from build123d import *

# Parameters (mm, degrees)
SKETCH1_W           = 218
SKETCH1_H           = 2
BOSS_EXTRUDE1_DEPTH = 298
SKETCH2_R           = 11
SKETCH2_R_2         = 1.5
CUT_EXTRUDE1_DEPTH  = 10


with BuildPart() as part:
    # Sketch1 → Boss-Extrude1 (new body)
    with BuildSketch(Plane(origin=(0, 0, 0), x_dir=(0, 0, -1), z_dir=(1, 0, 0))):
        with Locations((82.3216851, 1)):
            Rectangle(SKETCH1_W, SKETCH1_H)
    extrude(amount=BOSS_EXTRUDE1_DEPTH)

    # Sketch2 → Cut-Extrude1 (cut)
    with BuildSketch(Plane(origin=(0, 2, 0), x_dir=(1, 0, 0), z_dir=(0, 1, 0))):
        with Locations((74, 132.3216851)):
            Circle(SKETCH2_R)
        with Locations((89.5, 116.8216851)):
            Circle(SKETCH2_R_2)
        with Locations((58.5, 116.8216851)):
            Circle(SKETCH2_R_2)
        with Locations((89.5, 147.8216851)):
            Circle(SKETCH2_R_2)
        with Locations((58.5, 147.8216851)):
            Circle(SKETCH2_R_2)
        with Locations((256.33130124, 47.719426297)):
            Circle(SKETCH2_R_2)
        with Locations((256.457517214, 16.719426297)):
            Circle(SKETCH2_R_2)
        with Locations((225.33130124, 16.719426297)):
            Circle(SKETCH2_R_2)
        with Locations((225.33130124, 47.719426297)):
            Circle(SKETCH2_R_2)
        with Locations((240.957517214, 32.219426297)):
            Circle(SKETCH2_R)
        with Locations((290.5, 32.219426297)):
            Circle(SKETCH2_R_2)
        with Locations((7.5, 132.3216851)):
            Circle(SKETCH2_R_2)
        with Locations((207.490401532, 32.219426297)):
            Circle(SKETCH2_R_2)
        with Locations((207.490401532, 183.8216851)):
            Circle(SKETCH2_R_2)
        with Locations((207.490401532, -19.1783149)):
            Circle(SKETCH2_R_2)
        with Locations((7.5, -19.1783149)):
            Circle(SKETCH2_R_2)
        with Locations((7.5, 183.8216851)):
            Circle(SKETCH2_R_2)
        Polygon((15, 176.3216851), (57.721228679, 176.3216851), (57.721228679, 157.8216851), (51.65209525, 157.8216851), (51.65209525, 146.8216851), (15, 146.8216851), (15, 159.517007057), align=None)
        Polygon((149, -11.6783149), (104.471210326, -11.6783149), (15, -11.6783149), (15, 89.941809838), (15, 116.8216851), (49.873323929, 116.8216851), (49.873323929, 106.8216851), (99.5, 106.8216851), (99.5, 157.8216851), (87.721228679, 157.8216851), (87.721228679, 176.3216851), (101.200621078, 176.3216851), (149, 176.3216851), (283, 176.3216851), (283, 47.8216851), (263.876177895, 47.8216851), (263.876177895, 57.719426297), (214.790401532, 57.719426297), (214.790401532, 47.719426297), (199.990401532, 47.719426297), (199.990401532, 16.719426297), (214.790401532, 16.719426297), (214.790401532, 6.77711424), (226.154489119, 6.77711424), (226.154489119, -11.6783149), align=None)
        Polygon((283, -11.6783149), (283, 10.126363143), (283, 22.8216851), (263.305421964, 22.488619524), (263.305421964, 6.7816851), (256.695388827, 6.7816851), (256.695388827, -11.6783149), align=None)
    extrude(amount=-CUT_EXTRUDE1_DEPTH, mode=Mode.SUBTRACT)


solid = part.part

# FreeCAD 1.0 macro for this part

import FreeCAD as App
import Part
import Sketcher

doc = App.newDocument("Part")
body = doc.addObject("PartDesign::Body", "Body")

sketch1 = body.newObject("Sketcher::SketchObject", "Sketch")
sketch1.AttachmentSupport = (doc.getObject("YZ_Plane"), [""])
sketch1.MapMode = "FlatFace"
sketch1.addGeometry(Part.LineSegment(App.Vector(2, 26.7, 0), App.Vector(0, 26.7, 0)), False)
sketch1.addGeometry(Part.LineSegment(App.Vector(0, 26.7, 0), App.Vector(0, -191.3, 0)), False)
sketch1.addGeometry(Part.LineSegment(App.Vector(0, -191.3, 0), App.Vector(2, -191.3, 0)), False)
sketch1.addGeometry(Part.LineSegment(App.Vector(2, -191.3, 0), App.Vector(2, 26.7, 0)), False)
sketch1.addConstraint(Sketcher.Constraint("Coincident", 0, 2, 1, 1))
sketch1.addConstraint(Sketcher.Constraint("Coincident", 1, 2, 2, 1))
sketch1.addConstraint(Sketcher.Constraint("Coincident", 2, 2, 3, 1))
sketch1.addConstraint(Sketcher.Constraint("Coincident", 3, 2, 0, 1))
sketch1.addConstraint(Sketcher.Constraint("Horizontal", 0))
sketch1.addConstraint(Sketcher.Constraint("Vertical", 1))
sketch1.addConstraint(Sketcher.Constraint("Horizontal", 2))
sketch1.addConstraint(Sketcher.Constraint("Vertical", 3))
sketch1.addConstraint(Sketcher.Constraint("PointOnObject", 0, 2, -2))
sketch1.addConstraint(Sketcher.Constraint("DistanceX", 0, 2, 0, 1, 2.0))
sketch1.addConstraint(Sketcher.Constraint("DistanceY", 1, 2, 1, 1, 218.0))
sketch1.addConstraint(Sketcher.Constraint("DistanceY", -1, 1, 0, 2, 26.678315))
pad1 = body.newObject("PartDesign::Pad", "Pad")
pad1.Profile = sketch1
pad1.Length = 298

sketch2 = body.newObject("Sketcher::SketchObject", "Sketch001")
sketch2.AttachmentSupport = (doc.getObject("XZ_Plane"), [""])
sketch2.MapMode = "FlatFace"
sketch2.AttachmentOffset = App.Placement(App.Vector(0, 0, -2), App.Rotation())
sketch2.addGeometry(Part.Circle(App.Vector(74, -132.3, 0), App.Vector(0, 0, 1), 11), False)
sketch2.addGeometry(Part.Circle(App.Vector(89.5, -116.8, 0), App.Vector(0, 0, 1), 1.5), False)
sketch2.addGeometry(Part.Circle(App.Vector(58.5, -116.8, 0), App.Vector(0, 0, 1), 1.5), False)
sketch2.addGeometry(Part.Circle(App.Vector(89.5, -147.8, 0), App.Vector(0, 0, 1), 1.5), False)
sketch2.addGeometry(Part.Circle(App.Vector(58.5, -147.8, 0), App.Vector(0, 0, 1), 1.5), False)
sketch2.addGeometry(Part.Circle(App.Vector(256.3, -47.7, 0), App.Vector(0, 0, 1), 1.5), False)
sketch2.addGeometry(Part.Circle(App.Vector(256.5, -16.7, 0), App.Vector(0, 0, 1), 1.5), False)
sketch2.addGeometry(Part.Circle(App.Vector(225.3, -16.7, 0), App.Vector(0, 0, 1), 1.5), False)
sketch2.addGeometry(Part.Circle(App.Vector(225.3, -47.7, 0), App.Vector(0, 0, 1), 1.5), False)
sketch2.addGeometry(Part.Circle(App.Vector(241, -32.2, 0), App.Vector(0, 0, 1), 11), False)
sketch2.addGeometry(Part.Circle(App.Vector(290.5, -32.2, 0), App.Vector(0, 0, 1), 1.5), False)
sketch2.addGeometry(Part.Circle(App.Vector(7.5, -132.3, 0), App.Vector(0, 0, 1), 1.5), False)
sketch2.addGeometry(Part.Circle(App.Vector(207.5, -32.2, 0), App.Vector(0, 0, 1), 1.5), False)
sketch2.addGeometry(Part.Circle(App.Vector(207.5, -183.8, 0), App.Vector(0, 0, 1), 1.5), False)
sketch2.addGeometry(Part.Circle(App.Vector(207.5, 19.2, 0), App.Vector(0, 0, 1), 1.5), False)
sketch2.addGeometry(Part.Circle(App.Vector(7.5, 19.2, 0), App.Vector(0, 0, 1), 1.5), False)
sketch2.addGeometry(Part.Circle(App.Vector(7.5, -183.8, 0), App.Vector(0, 0, 1), 1.5), False)
sketch2.addGeometry(Part.LineSegment(App.Vector(57.7, -176.3, 0), App.Vector(15, -176.3, 0)), False)
sketch2.addGeometry(Part.LineSegment(App.Vector(15, -176.3, 0), App.Vector(15, -146.8, 0)), False)
sketch2.addGeometry(Part.LineSegment(App.Vector(15, -146.8, 0), App.Vector(51.7, -146.8, 0)), False)
sketch2.addGeometry(Part.LineSegment(App.Vector(51.7, -146.8, 0), App.Vector(51.7, -157.8, 0)), False)
sketch2.addGeometry(Part.LineSegment(App.Vector(51.7, -157.8, 0), App.Vector(57.7, -157.8, 0)), False)
sketch2.addGeometry(Part.LineSegment(App.Vector(57.7, -157.8, 0), App.Vector(57.7, -176.3, 0)), False)
sketch2.addGeometry(Part.LineSegment(App.Vector(15, 11.7, 0), App.Vector(226.2, 11.7, 0)), False)
sketch2.addGeometry(Part.LineSegment(App.Vector(226.2, 11.7, 0), App.Vector(226.2, -6.8, 0)), False)
sketch2.addGeometry(Part.LineSegment(App.Vector(226.2, -6.8, 0), App.Vector(214.8, -6.8, 0)), False)
sketch2.addGeometry(Part.LineSegment(App.Vector(214.8, -6.8, 0), App.Vector(214.8, -16.7, 0)), False)
sketch2.addGeometry(Part.LineSegment(App.Vector(214.8, -16.7, 0), App.Vector(200, -16.7, 0)), False)
sketch2.addGeometry(Part.LineSegment(App.Vector(200, -16.7, 0), App.Vector(200, -47.7, 0)), False)
sketch2.addGeometry(Part.LineSegment(App.Vector(200, -47.7, 0), App.Vector(214.8, -47.7, 0)), False)
sketch2.addGeometry(Part.LineSegment(App.Vector(214.8, -47.7, 0), App.Vector(214.8, -57.7, 0)), False)
sketch2.addGeometry(Part.LineSegment(App.Vector(214.8, -57.7, 0), App.Vector(263.9, -57.7, 0)), False)
sketch2.addGeometry(Part.LineSegment(App.Vector(263.9, -57.7, 0), App.Vector(263.9, -47.8, 0)), False)
sketch2.addGeometry(Part.LineSegment(App.Vector(263.9, -47.8, 0), App.Vector(283, -47.8, 0)), False)
sketch2.addGeometry(Part.LineSegment(App.Vector(283, -47.8, 0), App.Vector(283, -176.3, 0)), False)
sketch2.addGeometry(Part.LineSegment(App.Vector(283, -176.3, 0), App.Vector(87.7, -176.3, 0)), False)
sketch2.addGeometry(Part.LineSegment(App.Vector(87.7, -176.3, 0), App.Vector(87.7, -157.8, 0)), False)
sketch2.addGeometry(Part.LineSegment(App.Vector(87.7, -157.8, 0), App.Vector(99.5, -157.8, 0)), False)
sketch2.addGeometry(Part.LineSegment(App.Vector(99.5, -157.8, 0), App.Vector(99.5, -106.8, 0)), False)
sketch2.addGeometry(Part.LineSegment(App.Vector(99.5, -106.8, 0), App.Vector(49.9, -106.8, 0)), False)
sketch2.addGeometry(Part.LineSegment(App.Vector(49.9, -106.8, 0), App.Vector(49.9, -116.8, 0)), False)
sketch2.addGeometry(Part.LineSegment(App.Vector(49.9, -116.8, 0), App.Vector(15, -116.8, 0)), False)
sketch2.addGeometry(Part.LineSegment(App.Vector(15, -116.8, 0), App.Vector(15, 11.7, 0)), False)
sketch2.addGeometry(Part.LineSegment(App.Vector(283, 11.7, 0), App.Vector(283, -22.8, 0)), False)
sketch2.addGeometry(Part.LineSegment(App.Vector(283, -22.8, 0), App.Vector(263.3, -22.5, 0)), False)
sketch2.addGeometry(Part.LineSegment(App.Vector(263.3, -22.5, 0), App.Vector(263.3, -6.8, 0)), False)
sketch2.addGeometry(Part.LineSegment(App.Vector(263.3, -6.8, 0), App.Vector(256.7, -6.8, 0)), False)
sketch2.addGeometry(Part.LineSegment(App.Vector(256.7, -6.8, 0), App.Vector(256.7, 11.7, 0)), False)
sketch2.addGeometry(Part.LineSegment(App.Vector(256.7, 11.7, 0), App.Vector(283, 11.7, 0)), False)
sketch2.addConstraint(Sketcher.Constraint("Coincident", 17, 2, 18, 1))
sketch2.addConstraint(Sketcher.Constraint("Coincident", 18, 2, 19, 1))
sketch2.addConstraint(Sketcher.Constraint("Coincident", 19, 2, 20, 1))
sketch2.addConstraint(Sketcher.Constraint("Coincident", 20, 2, 21, 1))
sketch2.addConstraint(Sketcher.Constraint("Coincident", 21, 2, 22, 1))
sketch2.addConstraint(Sketcher.Constraint("Coincident", 22, 2, 17, 1))
sketch2.addConstraint(Sketcher.Constraint("Coincident", 23, 2, 24, 1))
sketch2.addConstraint(Sketcher.Constraint("Coincident", 24, 2, 25, 1))
sketch2.addConstraint(Sketcher.Constraint("Coincident", 25, 2, 26, 1))
sketch2.addConstraint(Sketcher.Constraint("Coincident", 26, 2, 27, 1))
sketch2.addConstraint(Sketcher.Constraint("Coincident", 27, 2, 28, 1))
sketch2.addConstraint(Sketcher.Constraint("Coincident", 28, 2, 29, 1))
sketch2.addConstraint(Sketcher.Constraint("Coincident", 29, 2, 30, 1))
sketch2.addConstraint(Sketcher.Constraint("Coincident", 30, 2, 31, 1))
sketch2.addConstraint(Sketcher.Constraint("Coincident", 31, 2, 32, 1))
sketch2.addConstraint(Sketcher.Constraint("Coincident", 32, 2, 33, 1))
sketch2.addConstraint(Sketcher.Constraint("Coincident", 33, 2, 34, 1))
sketch2.addConstraint(Sketcher.Constraint("Coincident", 34, 2, 35, 1))
sketch2.addConstraint(Sketcher.Constraint("Coincident", 35, 2, 36, 1))
sketch2.addConstraint(Sketcher.Constraint("Coincident", 36, 2, 37, 1))
sketch2.addConstraint(Sketcher.Constraint("Coincident", 37, 2, 38, 1))
sketch2.addConstraint(Sketcher.Constraint("Coincident", 38, 2, 39, 1))
sketch2.addConstraint(Sketcher.Constraint("Coincident", 39, 2, 40, 1))
sketch2.addConstraint(Sketcher.Constraint("Coincident", 40, 2, 41, 1))
sketch2.addConstraint(Sketcher.Constraint("Coincident", 41, 2, 42, 1))
sketch2.addConstraint(Sketcher.Constraint("Coincident", 42, 2, 23, 1))
sketch2.addConstraint(Sketcher.Constraint("Coincident", 43, 2, 44, 1))
sketch2.addConstraint(Sketcher.Constraint("Coincident", 44, 2, 45, 1))
sketch2.addConstraint(Sketcher.Constraint("Coincident", 45, 2, 46, 1))
sketch2.addConstraint(Sketcher.Constraint("Coincident", 46, 2, 47, 1))
sketch2.addConstraint(Sketcher.Constraint("Coincident", 47, 2, 48, 1))
sketch2.addConstraint(Sketcher.Constraint("Coincident", 48, 2, 43, 1))
sketch2.addConstraint(Sketcher.Constraint("Horizontal", 17))
sketch2.addConstraint(Sketcher.Constraint("Vertical", 18))
sketch2.addConstraint(Sketcher.Constraint("Horizontal", 19))
sketch2.addConstraint(Sketcher.Constraint("Vertical", 20))
sketch2.addConstraint(Sketcher.Constraint("Horizontal", 21))
sketch2.addConstraint(Sketcher.Constraint("Vertical", 22))
sketch2.addConstraint(Sketcher.Constraint("Horizontal", 23))
sketch2.addConstraint(Sketcher.Constraint("Vertical", 24))
sketch2.addConstraint(Sketcher.Constraint("Horizontal", 25))
sketch2.addConstraint(Sketcher.Constraint("Vertical", 26))
sketch2.addConstraint(Sketcher.Constraint("Horizontal", 27))
sketch2.addConstraint(Sketcher.Constraint("Vertical", 28))
sketch2.addConstraint(Sketcher.Constraint("Horizontal", 29))
sketch2.addConstraint(Sketcher.Constraint("Vertical", 30))
sketch2.addConstraint(Sketcher.Constraint("Horizontal", 31))
sketch2.addConstraint(Sketcher.Constraint("Vertical", 32))
sketch2.addConstraint(Sketcher.Constraint("Horizontal", 33))
sketch2.addConstraint(Sketcher.Constraint("Vertical", 34))
sketch2.addConstraint(Sketcher.Constraint("Horizontal", 35))
sketch2.addConstraint(Sketcher.Constraint("Vertical", 36))
sketch2.addConstraint(Sketcher.Constraint("Horizontal", 37))
sketch2.addConstraint(Sketcher.Constraint("Vertical", 38))
sketch2.addConstraint(Sketcher.Constraint("Horizontal", 39))
sketch2.addConstraint(Sketcher.Constraint("Vertical", 40))
sketch2.addConstraint(Sketcher.Constraint("Horizontal", 41))
sketch2.addConstraint(Sketcher.Constraint("Vertical", 42))
sketch2.addConstraint(Sketcher.Constraint("Vertical", 43))
sketch2.addConstraint(Sketcher.Constraint("Vertical", 45))
sketch2.addConstraint(Sketcher.Constraint("Horizontal", 46))
sketch2.addConstraint(Sketcher.Constraint("Vertical", 47))
sketch2.addConstraint(Sketcher.Constraint("Horizontal", 48))
sketch2.addConstraint(Sketcher.Constraint("Equal", 1, 2))
sketch2.addConstraint(Sketcher.Constraint("Equal", 2, 3))
sketch2.addConstraint(Sketcher.Constraint("Equal", 3, 4))
sketch2.addConstraint(Sketcher.Constraint("Equal", 4, 5))
sketch2.addConstraint(Sketcher.Constraint("Equal", 5, 6))
sketch2.addConstraint(Sketcher.Constraint("Equal", 6, 7))
sketch2.addConstraint(Sketcher.Constraint("Equal", 7, 8))
sketch2.addConstraint(Sketcher.Constraint("Equal", 0, 9))
sketch2.addConstraint(Sketcher.Constraint("Equal", 8, 10))
sketch2.addConstraint(Sketcher.Constraint("Equal", 10, 11))
sketch2.addConstraint(Sketcher.Constraint("Equal", 11, 12))
sketch2.addConstraint(Sketcher.Constraint("Equal", 12, 13))
sketch2.addConstraint(Sketcher.Constraint("Equal", 13, 14))
sketch2.addConstraint(Sketcher.Constraint("Equal", 14, 15))
sketch2.addConstraint(Sketcher.Constraint("Equal", 15, 16))
sketch2.addConstraint(Sketcher.Constraint("Horizontal", 1, 3, 2, 3))
sketch2.addConstraint(Sketcher.Constraint("Horizontal", 3, 3, 4, 3))
sketch2.addConstraint(Sketcher.Constraint("Horizontal", 6, 3, 7, 3))
sketch2.addConstraint(Sketcher.Constraint("Horizontal", 5, 3, 8, 3))
sketch2.addConstraint(Sketcher.Constraint("Horizontal", 9, 3, 10, 3))
sketch2.addConstraint(Sketcher.Constraint("Horizontal", 0, 3, 11, 3))
sketch2.addConstraint(Sketcher.Constraint("Horizontal", 10, 3, 12, 3))
sketch2.addConstraint(Sketcher.Constraint("Horizontal", 14, 3, 15, 3))
sketch2.addConstraint(Sketcher.Constraint("Horizontal", 13, 3, 16, 3))
sketch2.addConstraint(Sketcher.Constraint("Horizontal", 7, 3, 26, 2))
sketch2.addConstraint(Sketcher.Constraint("Horizontal", 8, 3, 28, 2))
sketch2.addConstraint(Sketcher.Constraint("Horizontal", 22, 2, 34, 2))
sketch2.addConstraint(Sketcher.Constraint("Horizontal", 21, 2, 36, 2))
sketch2.addConstraint(Sketcher.Constraint("Horizontal", 2, 3, 40, 2))
sketch2.addConstraint(Sketcher.Constraint("Horizontal", 42, 2, 47, 2))
sketch2.addConstraint(Sketcher.Constraint("Vertical", 1, 3, 3, 3))
sketch2.addConstraint(Sketcher.Constraint("Vertical", 2, 3, 4, 3))
sketch2.addConstraint(Sketcher.Constraint("Vertical", 7, 3, 8, 3))
sketch2.addConstraint(Sketcher.Constraint("Vertical", 12, 3, 13, 3))
sketch2.addConstraint(Sketcher.Constraint("Vertical", 13, 3, 14, 3))
sketch2.addConstraint(Sketcher.Constraint("Vertical", 11, 3, 15, 3))
sketch2.addConstraint(Sketcher.Constraint("Vertical", 15, 3, 16, 3))
sketch2.addConstraint(Sketcher.Constraint("Vertical", 26, 2, 29, 2))
sketch2.addConstraint(Sketcher.Constraint("Vertical", 18, 2, 41, 2))
sketch2.addConstraint(Sketcher.Constraint("Vertical", 34, 2, 43, 2))
sketch2.addConstraint(Sketcher.Constraint("Equal", 30, 40))
sketch2.addConstraint(Sketcher.Constraint("Equal", 34, 42))
sketch2.addConstraint(Sketcher.Constraint("Diameter", 0, 22.0))
sketch2.addConstraint(Sketcher.Constraint("Diameter", 1, 3.0))
sketch2.addConstraint(Sketcher.Constraint("DistanceY", 20, 2, 20, 1, 11.0))
sketch2.addConstraint(Sketcher.Constraint("DistanceY", 28, 2, 28, 1, 31.0))
sketch2.addConstraint(Sketcher.Constraint("DistanceY", 30, 2, 30, 1, 10.0))
sketch2.addConstraint(Sketcher.Constraint("DistanceY", 38, 1, 38, 2, 51.0))
sketch2.addConstraint(Sketcher.Constraint("DistanceX", 27, 2, 27, 1, 14.8))
sketch2.addConstraint(Sketcher.Constraint("DistanceY", 18, 1, 18, 2, 29.5))
sketch2.addConstraint(Sketcher.Constraint("DistanceY", 34, 2, 34, 1, 128.5))
sketch2.addConstraint(Sketcher.Constraint("DistanceY", 43, 2, 43, 1, 34.5))
sketch2.addConstraint(Sketcher.Constraint("DistanceX", -1, 1, 0, 3, 74.0))
sketch2.addConstraint(Sketcher.Constraint("DistanceX", -1, 1, 17, 2, 15.0))
sketch2.addConstraint(Sketcher.Constraint("DistanceX", -1, 1, 33, 2, 283.0))
sketch2.addConstraint(Sketcher.Constraint("DistanceX", 2, 3, 1, 3, 31.0))
sketch2.addConstraint(Sketcher.Constraint("DistanceY", 3, 3, 1, 3, 31.0))
sketch2.addConstraint(Sketcher.Constraint("DistanceX", 7, 3, 5, 3, 31.0))
sketch2.addConstraint(Sketcher.Constraint("DistanceX", 11, 3, 2, 3, 51.0))
sketch2.addConstraint(Sketcher.Constraint("DistanceY", 13, 3, 3, 3, 36.0))
sketch2.addConstraint(Sketcher.Constraint("DistanceY", 2, 3, 15, 3, 136.0))
sketch2.addConstraint(Sketcher.Constraint("DistanceY", 17, 2, 11, 3, 44.0))
sketch2.addConstraint(Sketcher.Constraint("DistanceX", 22, 2, 35, 2, 30.0))
sketch2.addConstraint(Sketcher.Constraint("DistanceX", 3, 3, 37, 2, 10.0))
sketch2.addConstraint(Sketcher.Constraint("DistanceY", 47, 1, 47, 2, 18.46))
sketch2.addConstraint(Sketcher.Constraint("DistanceX", -1, 1, 1, 3, 89.5))
sketch2.addConstraint(Sketcher.Constraint("DistanceX", -1, 1, 10, 3, 290.5))
sketch2.addConstraint(Sketcher.Constraint("DistanceY", 5, 3, 9, 3, 15.5))
sketch2.addConstraint(Sketcher.Constraint("DistanceX", 9, 3, 6, 3, 15.5))
sketch2.addConstraint(Sketcher.Constraint("DistanceX", 12, 3, 25, 2, 7.3))
sketch2.addConstraint(Sketcher.Constraint("DistanceX", 17, 2, 17, 1, 42.721229))
sketch2.addConstraint(Sketcher.Constraint("DistanceX", 23, 1, 23, 2, 211.154489))
sketch2.addConstraint(Sketcher.Constraint("DistanceX", 48, 1, 48, 2, 26.304611))
sketch2.addConstraint(Sketcher.Constraint("DistanceY", 24, 2, 24, 1, 18.455429))
sketch2.addConstraint(Sketcher.Constraint("DistanceY", 32, 1, 32, 2, 9.897741))
sketch2.addConstraint(Sketcher.Constraint("DistanceX", -1, 1, 5, 3, 256.331301))
sketch2.addConstraint(Sketcher.Constraint("DistanceX", -1, 1, 12, 3, 207.490402))
sketch2.addConstraint(Sketcher.Constraint("DistanceX", 19, 1, 19, 2, 36.652095))
sketch2.addConstraint(Sketcher.Constraint("DistanceX", 31, 1, 31, 2, 49.085776))
sketch2.addConstraint(Sketcher.Constraint("DistanceX", 39, 2, 39, 1, 49.626676))
sketch2.addConstraint(Sketcher.Constraint("DistanceX", 46, 2, 46, 1, 6.610033))
sketch2.addConstraint(Sketcher.Constraint("DistanceY", 45, 1, 45, 2, 15.706934))
sketch2.addConstraint(Sketcher.Constraint("DistanceY", 44, 2, -1, 1, 22.48862))
sketch2.addConstraint(Sketcher.Constraint("DistanceX", 23, 2, 6, 3, 30.303028))
pocket1 = body.newObject("PartDesign::Pocket", "Pocket")
pocket1.Profile = sketch2
pocket1.Length = 10
pocket1.Reversed = True

doc.recompute()
